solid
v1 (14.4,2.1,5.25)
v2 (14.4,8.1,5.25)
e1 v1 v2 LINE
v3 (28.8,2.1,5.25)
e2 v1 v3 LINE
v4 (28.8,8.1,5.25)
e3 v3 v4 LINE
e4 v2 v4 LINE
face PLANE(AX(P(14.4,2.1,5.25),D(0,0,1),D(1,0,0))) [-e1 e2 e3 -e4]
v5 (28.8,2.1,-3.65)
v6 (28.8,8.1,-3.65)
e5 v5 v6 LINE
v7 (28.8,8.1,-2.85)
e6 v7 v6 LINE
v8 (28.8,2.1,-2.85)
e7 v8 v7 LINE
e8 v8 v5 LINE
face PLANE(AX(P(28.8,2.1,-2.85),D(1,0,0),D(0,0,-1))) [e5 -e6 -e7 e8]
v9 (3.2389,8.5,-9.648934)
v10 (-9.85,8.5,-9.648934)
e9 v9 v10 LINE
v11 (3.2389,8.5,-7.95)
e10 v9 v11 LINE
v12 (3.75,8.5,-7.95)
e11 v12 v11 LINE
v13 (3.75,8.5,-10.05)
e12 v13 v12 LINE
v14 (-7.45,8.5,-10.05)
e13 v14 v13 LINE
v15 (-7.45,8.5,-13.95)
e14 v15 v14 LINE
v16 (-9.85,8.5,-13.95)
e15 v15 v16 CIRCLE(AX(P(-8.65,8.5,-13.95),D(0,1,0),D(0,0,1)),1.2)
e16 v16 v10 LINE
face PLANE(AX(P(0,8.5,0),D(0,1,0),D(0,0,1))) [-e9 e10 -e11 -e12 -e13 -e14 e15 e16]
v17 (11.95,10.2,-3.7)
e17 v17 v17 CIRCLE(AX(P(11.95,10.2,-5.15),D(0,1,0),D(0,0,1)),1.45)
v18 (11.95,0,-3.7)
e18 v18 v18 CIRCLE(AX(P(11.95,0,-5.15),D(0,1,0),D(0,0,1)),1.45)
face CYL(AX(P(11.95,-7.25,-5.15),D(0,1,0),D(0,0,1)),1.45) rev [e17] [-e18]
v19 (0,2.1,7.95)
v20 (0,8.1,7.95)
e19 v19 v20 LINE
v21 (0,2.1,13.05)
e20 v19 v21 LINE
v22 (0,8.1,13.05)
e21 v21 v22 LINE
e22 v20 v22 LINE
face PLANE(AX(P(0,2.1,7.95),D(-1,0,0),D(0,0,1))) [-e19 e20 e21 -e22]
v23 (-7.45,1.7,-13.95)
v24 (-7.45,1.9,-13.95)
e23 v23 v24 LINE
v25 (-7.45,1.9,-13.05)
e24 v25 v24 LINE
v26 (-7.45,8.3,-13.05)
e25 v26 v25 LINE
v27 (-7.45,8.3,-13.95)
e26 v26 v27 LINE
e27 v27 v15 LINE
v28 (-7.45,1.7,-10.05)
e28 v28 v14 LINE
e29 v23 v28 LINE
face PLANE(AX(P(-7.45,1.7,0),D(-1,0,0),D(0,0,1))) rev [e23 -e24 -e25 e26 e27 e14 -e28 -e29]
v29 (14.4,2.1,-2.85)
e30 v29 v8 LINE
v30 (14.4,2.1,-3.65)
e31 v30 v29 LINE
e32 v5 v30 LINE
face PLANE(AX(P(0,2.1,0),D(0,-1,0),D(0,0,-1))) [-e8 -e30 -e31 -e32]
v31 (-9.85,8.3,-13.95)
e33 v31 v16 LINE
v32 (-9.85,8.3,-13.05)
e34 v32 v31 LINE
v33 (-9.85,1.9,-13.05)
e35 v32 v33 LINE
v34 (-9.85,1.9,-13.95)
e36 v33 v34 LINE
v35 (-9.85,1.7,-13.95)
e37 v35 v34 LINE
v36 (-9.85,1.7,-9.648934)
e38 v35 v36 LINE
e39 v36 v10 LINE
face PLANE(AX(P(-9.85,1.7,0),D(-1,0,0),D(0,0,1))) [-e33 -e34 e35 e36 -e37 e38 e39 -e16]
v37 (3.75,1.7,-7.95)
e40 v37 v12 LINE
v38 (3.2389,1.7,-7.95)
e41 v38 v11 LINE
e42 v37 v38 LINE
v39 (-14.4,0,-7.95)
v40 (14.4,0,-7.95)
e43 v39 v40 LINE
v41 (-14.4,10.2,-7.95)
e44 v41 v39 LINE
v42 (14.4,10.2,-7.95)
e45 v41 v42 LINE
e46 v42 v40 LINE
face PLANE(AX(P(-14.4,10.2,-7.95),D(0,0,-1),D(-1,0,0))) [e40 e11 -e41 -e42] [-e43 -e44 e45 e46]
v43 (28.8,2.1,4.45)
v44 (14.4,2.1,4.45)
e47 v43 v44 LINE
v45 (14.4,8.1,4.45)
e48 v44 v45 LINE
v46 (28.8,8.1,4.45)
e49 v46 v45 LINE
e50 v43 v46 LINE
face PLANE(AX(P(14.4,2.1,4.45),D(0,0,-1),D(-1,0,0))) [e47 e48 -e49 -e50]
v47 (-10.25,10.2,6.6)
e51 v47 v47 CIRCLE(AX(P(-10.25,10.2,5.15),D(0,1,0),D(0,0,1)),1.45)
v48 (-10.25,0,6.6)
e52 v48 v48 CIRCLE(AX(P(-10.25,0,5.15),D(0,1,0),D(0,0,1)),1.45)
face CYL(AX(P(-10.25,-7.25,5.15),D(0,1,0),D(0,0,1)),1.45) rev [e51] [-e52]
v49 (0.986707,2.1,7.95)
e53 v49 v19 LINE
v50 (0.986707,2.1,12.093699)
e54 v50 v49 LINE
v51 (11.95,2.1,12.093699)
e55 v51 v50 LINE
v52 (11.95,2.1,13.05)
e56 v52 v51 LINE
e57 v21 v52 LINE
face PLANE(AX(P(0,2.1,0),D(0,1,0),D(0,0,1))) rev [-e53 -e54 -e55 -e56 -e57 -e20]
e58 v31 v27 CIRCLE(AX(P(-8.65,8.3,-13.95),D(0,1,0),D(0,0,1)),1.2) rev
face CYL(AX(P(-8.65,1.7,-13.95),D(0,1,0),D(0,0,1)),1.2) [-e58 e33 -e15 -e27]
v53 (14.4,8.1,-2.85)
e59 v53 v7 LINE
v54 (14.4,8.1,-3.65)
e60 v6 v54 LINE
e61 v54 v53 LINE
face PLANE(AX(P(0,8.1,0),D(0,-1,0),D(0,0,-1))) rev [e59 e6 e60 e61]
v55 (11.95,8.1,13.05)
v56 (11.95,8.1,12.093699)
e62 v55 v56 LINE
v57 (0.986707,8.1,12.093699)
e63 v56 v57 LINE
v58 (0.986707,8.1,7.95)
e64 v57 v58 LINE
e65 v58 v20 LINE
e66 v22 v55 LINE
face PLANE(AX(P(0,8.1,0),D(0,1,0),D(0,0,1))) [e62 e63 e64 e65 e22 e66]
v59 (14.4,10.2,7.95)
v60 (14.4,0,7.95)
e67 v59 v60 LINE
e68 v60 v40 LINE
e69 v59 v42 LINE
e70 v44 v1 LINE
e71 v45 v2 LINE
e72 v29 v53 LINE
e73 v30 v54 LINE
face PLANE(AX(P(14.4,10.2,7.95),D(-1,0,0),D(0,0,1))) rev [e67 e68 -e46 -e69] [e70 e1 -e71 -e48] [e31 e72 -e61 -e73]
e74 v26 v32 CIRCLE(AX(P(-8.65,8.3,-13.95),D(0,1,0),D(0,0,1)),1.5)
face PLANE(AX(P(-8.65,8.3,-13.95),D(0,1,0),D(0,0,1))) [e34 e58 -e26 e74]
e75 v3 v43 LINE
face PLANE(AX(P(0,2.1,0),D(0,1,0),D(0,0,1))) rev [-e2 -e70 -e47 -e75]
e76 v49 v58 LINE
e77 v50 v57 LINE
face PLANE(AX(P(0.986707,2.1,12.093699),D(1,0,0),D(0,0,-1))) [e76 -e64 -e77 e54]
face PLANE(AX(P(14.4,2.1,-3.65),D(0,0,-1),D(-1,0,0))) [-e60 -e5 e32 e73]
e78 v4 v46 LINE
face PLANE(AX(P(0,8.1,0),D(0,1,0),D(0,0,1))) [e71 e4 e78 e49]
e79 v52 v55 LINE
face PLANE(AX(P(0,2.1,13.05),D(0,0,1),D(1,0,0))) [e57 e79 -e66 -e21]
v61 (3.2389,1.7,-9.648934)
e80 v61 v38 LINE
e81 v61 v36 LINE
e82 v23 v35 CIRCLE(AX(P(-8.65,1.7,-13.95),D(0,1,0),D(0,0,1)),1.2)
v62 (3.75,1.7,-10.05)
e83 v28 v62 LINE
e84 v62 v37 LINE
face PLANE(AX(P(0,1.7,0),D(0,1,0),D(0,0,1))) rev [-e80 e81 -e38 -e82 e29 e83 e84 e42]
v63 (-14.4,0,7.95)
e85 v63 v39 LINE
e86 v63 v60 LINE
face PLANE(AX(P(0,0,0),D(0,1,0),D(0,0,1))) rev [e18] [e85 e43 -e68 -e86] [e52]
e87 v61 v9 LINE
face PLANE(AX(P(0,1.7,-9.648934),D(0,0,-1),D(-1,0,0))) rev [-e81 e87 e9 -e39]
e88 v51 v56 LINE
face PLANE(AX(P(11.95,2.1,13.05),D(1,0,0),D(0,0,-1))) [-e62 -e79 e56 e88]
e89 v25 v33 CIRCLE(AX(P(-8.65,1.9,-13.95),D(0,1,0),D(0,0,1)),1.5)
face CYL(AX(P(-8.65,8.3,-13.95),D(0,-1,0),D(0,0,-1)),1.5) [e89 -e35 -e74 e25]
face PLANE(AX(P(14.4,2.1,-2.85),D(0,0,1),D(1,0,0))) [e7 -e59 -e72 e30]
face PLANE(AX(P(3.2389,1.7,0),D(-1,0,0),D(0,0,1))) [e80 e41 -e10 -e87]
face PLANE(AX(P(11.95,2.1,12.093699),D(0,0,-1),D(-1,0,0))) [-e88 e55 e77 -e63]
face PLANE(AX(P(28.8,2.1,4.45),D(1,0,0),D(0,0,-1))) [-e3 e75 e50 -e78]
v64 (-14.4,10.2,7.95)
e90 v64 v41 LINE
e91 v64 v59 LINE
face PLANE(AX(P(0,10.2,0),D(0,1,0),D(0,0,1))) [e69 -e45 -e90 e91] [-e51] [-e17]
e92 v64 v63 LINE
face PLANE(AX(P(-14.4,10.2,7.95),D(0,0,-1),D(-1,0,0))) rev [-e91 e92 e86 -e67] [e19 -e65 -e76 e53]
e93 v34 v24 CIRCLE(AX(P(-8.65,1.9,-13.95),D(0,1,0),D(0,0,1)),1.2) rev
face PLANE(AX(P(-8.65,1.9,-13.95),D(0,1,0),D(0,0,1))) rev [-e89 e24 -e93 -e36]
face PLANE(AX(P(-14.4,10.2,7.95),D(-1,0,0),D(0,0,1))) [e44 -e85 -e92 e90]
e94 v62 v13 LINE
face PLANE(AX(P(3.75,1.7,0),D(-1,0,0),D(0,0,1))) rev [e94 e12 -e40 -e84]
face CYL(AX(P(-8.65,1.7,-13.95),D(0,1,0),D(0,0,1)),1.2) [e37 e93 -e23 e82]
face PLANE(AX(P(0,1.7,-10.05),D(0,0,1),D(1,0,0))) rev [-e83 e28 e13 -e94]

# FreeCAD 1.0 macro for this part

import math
import FreeCAD as App
import Part
import Sketcher
from FreeCAD import Vector


def add_polygon(sketch, points):
    """Adds a closed chain of lines whose ends are joined by coincident constraints."""
    first, n = sketch.GeometryCount, len(points)
    for a, b in zip(points, points[1:] + points[:1]):
        sketch.addGeometry(Part.LineSegment(App.Vector(*a, 0), App.Vector(*b, 0)), False)
    for i in range(n):
        sketch.addConstraint(Sketcher.Constraint("Coincident", first + i, 2, first + (i + 1) % n, 1))

doc = App.newDocument("Part")
body = doc.addObject("PartDesign::Body", "Body")

# Sketch on XZ plane
sketch1 = doc.addObject("Sketcher::SketchObject", "Sketch")
body.addObject(sketch1)
sketch1.AttachmentSupport = (doc.XZ_Plane, [""])
sketch1.MapMode = "FlatFace"
add_polygon(sketch1, [(-14, -8), (-14, 8), (14, 8), (14, -8)])  # lines 0-3
sketch1.addConstraint([
    Sketcher.Constraint("Vertical", 0),
    Sketcher.Constraint("Horizontal", 1),
    Sketcher.Constraint("Vertical", 2),
    Sketcher.Constraint("Horizontal", 3),
    Sketcher.Constraint("Symmetric", 0, 2, 2, 2, -1, 1),
    Sketcher.Constraint("DistanceX", 1, 1, 1, 2, 28.8),
    Sketcher.Constraint("DistanceY", 0, 1, 0, 2, 15.9),
])
pad1 = doc.addObject("PartDesign::Pad", "Pad")
body.addObject(pad1)
pad1.Profile = sketch1
pad1.Length = 10.2
pad1.Reversed = True

# Sketch on XZ plane
sketch2 = doc.addObject("Sketcher::SketchObject", "Sketch001")
body.addObject(sketch2)
sketch2.AttachmentSupport = (doc.XZ_Plane, [""])
sketch2.MapMode = "FlatFace"
sketch2.AttachmentOffset = App.Placement(Vector(0, 0, -10.2), App.Rotation())
sketch2.addGeometry([
    Part.Circle(Vector(11.9, -5.2, 0), Vector(0, 0, 1), 1.4),
    Part.Circle(Vector(-10.2, 5.2, 0), Vector(0, 0, 1), 1.4),
], False)
sketch2.addConstraint([
    Sketcher.Constraint("Equal", 0, 1),
    Sketcher.Constraint("Diameter", 0, 2.9),
    Sketcher.Constraint("DistanceX", 1, 3, 0, 3, 22.2),
    Sketcher.Constraint("DistanceY", 0, 3, 1, 3, 10.3),
    Sketcher.Constraint("DistanceX", -1, 1, 0, 3, 11.95),
    Sketcher.Constraint("DistanceY", 0, 3, -1, 1, 5.15),
])
pocket1 = doc.addObject("PartDesign::Pocket", "Pocket")
body.addObject(pocket1)
pocket1.Profile = sketch2
pocket1.Length = 17.45
pocket1.Reversed = True
body2 = doc.addObject("PartDesign::Body", "Body001")

# Sketch on XZ plane
sketch3 = doc.addObject("Sketcher::SketchObject", "Sketch002")
body2.addObject(sketch3)
sketch3.AttachmentSupport = (doc.getObject("XZ_Plane001"), [""])
sketch3.MapMode = "FlatFace"
sketch3.AttachmentOffset = App.Placement(Vector(0, 0, -5.1), App.Rotation())
sketch3.addGeometry(Part.Circle(Vector(-8.7, -13.9, 0), Vector(0, 0, 1), 1.5), False)
sketch3.addConstraint([
    Sketcher.Constraint("Diameter", 0, 3.0),
    Sketcher.Constraint("DistanceX", 0, 3, -1, 1, 8.65),
    Sketcher.Constraint("DistanceY", 0, 3, -1, 1, 13.95),
])
pad2 = doc.addObject("PartDesign::Pad", "Pad001")
body2.addObject(pad2)
pad2.Profile = sketch3
pad2.Type = "TwoLengths"
pad2.Length = 3.2
pad2.Length2 = 3.2
pad2.Reversed = True
body.AllowCompound = True
doc.recompute()

boolean = doc.addObject("PartDesign::Boolean", "Boolean")
body.addObject(boolean)
boolean.Type = "Fuse"
boolean.addObjects([body2])

# Sketch on XZ plane
sketch4 = doc.addObject("Sketcher::SketchObject", "Sketch003")
body.addObject(sketch4)
sketch4.AttachmentSupport = (doc.XZ_Plane, [""])
sketch4.MapMode = "FlatFace"
sketch4.AttachmentOffset = App.Placement(Vector(0, 0, -5.1), App.Rotation())
sketch4.addGeometry([
    Part.ArcOfCircle(Part.Circle(Vector(-8.7, -13.9, 0), Vector(0, 0, 1), 1.2), math.radians(180), math.radians(360)),  # 0
    Part.LineSegment(Vector(-9.8, -13.9, 0), Vector(-9.8, -9.6, 0)),  # 1
    Part.LineSegment(Vector(-9.8, -9.6, 0), Vector(3.2, -9.6, 0)),  # 2
    Part.LineSegment(Vector(3.2, -9.6, 0), Vector(3.2, -8, 0)),  # 3
    Part.LineSegment(Vector(3.2, -8, 0), Vector(3.8, -8, 0)),  # 4
    Part.LineSegment(Vector(3.8, -8, 0), Vector(3.8, -10.1, 0)),  # 5
    Part.LineSegment(Vector(3.8, -10.1, 0), Vector(-7.5, -10.1, 0)),  # 6
    Part.LineSegment(Vector(-7.5, -10.1, 0), Vector(-7.5, -13.9, 0)),  # 7
], False)
sketch4.addConstraint([
    Sketcher.Constraint("Tangent", 0, 1, 1, 1),
    Sketcher.Constraint("Coincident", 1, 2, 2, 1),
    Sketcher.Constraint("Coincident", 2, 2, 3, 1),
    Sketcher.Constraint("Coincident", 3, 2, 4, 1),
    Sketcher.Constraint("Coincident", 4, 2, 5, 1),
    Sketcher.Constraint("Coincident", 5, 2, 6, 1),
    Sketcher.Constraint("Coincident", 6, 2, 7, 1),
    Sketcher.Constraint("Tangent", 7, 2, 0, 2),
    Sketcher.Constraint("Vertical", 1),
    Sketcher.Constraint("Horizontal", 2),
    Sketcher.Constraint("Vertical", 3),
    Sketcher.Constraint("Horizontal", 4),
    Sketcher.Constraint("Vertical", 5),
    Sketcher.Constraint("Horizontal", 6),
    Sketcher.Constraint("Vertical", 7),
    Sketcher.Constraint("Radius", 0, 1.2),
    Sketcher.Constraint("DistanceX", 6, 2, 6, 1, 11.2),
    Sketcher.Constraint("DistanceY", 5, 2, 5, 1, 2.1),
    Sketcher.Constraint("DistanceY", 7, 2, 7, 1, 3.9),
    Sketcher.Constraint("DistanceX", 0, 3, -1, 1, 8.65),
    Sketcher.Constraint("DistanceY", 0, 3, -1, 1, 13.95),
    Sketcher.Constraint("DistanceX", 2, 1, 2, 2, 13.0889),
    Sketcher.Constraint("DistanceY", 1, 1, 1, 2, 4.301066),
])
pad3 = doc.addObject("PartDesign::Pad", "Pad002")
body.addObject(pad3)
pad3.Profile = sketch4
pad3.Type = "TwoLengths"
pad3.Length = 3.4
pad3.Length2 = 3.4
pad3.Reversed = True

# Sketch on XZ plane
sketch5 = doc.addObject("Sketcher::SketchObject", "Sketch004")
body.addObject(sketch5)
sketch5.AttachmentSupport = (doc.XZ_Plane, [""])
sketch5.MapMode = "FlatFace"
sketch5.AttachmentOffset = App.Placement(Vector(0, 0, -5.1), App.Rotation())
add_polygon(sketch5, [(14.4, -3.6), (14.4, -2.9), (28.8, -2.9), (28.8, -3.6)])  # lines 0-3
add_polygon(sketch5, [(14.4, 4.5), (14.4, 5.2), (28.8, 5.2), (28.8, 4.5)])  # lines 4-7
add_polygon(sketch5, [(0, 8), (0, 13.1), (11.9, 13.1), (11.9, 12.1), (1, 12.1), (1, 8)])  # lines 8-13
sketch5.addConstraint([
    Sketcher.Constraint("Vertical", 0),
    Sketcher.Constraint("Horizontal", 1),
    Sketcher.Constraint("Vertical", 2),
    Sketcher.Constraint("Horizontal", 3),
    Sketcher.Constraint("Vertical", 4),
    Sketcher.Constraint("Horizontal", 5),
    Sketcher.Constraint("Vertical", 6),
    Sketcher.Constraint("Horizontal", 7),
    Sketcher.Constraint("Vertical", 8),
    Sketcher.Constraint("Horizontal", 9),
    Sketcher.Constraint("Vertical", 10),
    Sketcher.Constraint("Horizontal", 11),
    Sketcher.Constraint("Vertical", 12),
    Sketcher.Constraint("Horizontal", 13),
    Sketcher.Constraint("PointOnObject", 8, 2, -2),
    Sketcher.Constraint("Vertical", 3, 2, 4, 2),
    Sketcher.Constraint("Vertical", 2, 2, 5, 2),
    Sketcher.Constraint("Equal", 2, 4),
    Sketcher.Constraint("DistanceX", 1, 1, 1, 2, 14.4),
    Sketcher.Constraint("DistanceY", 0, 1, 0, 2, 0.8),
    Sketcher.Constraint("DistanceY", 8, 1, 8, 2, 5.1),
    Sketcher.Constraint("DistanceX", 9, 1, 9, 2, 11.95),
    Sketcher.Constraint("DistanceX", -1, 1, 0, 2, 14.4),
    Sketcher.Constraint("DistanceY", 0, 2, 4, 2, 8.1),
    Sketcher.Constraint("DistanceY", 4, 2, 8, 2, 7.8),
    Sketcher.Constraint("DistanceY", 0, 2, -1, 1, 2.85),
    Sketcher.Constraint("DistanceY", 10, 2, 10, 1, 0.956301),
    Sketcher.Constraint("DistanceX", 11, 2, 11, 1, 10.963293),
])
pad4 = doc.addObject("PartDesign::Pad", "Pad003")
body.addObject(pad4)
pad4.Profile = sketch5
pad4.Type = "TwoLengths"
pad4.Length = 3
pad4.Length2 = 3
pad4.Reversed = True

doc.recompute()
